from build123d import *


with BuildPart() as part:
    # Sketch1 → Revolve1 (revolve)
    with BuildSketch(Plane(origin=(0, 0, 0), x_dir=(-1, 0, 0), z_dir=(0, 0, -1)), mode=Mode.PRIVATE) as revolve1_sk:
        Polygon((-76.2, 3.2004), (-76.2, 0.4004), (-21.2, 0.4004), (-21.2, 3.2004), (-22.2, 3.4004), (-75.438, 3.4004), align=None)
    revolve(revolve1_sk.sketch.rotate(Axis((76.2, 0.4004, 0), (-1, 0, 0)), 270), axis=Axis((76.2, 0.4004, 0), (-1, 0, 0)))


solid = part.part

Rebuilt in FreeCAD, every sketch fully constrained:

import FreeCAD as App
import Part
import Sketcher
Q = App.Units.Quantity


def add_polygon(sketch, points):
    """Adds a closed chain of lines whose ends are joined by coincident constraints."""
    first, n = sketch.GeometryCount, len(points)
    for a, b in zip(points, points[1:] + points[:1]):
        sketch.addGeometry(Part.LineSegment(App.Vector(*a, 0), App.Vector(*b, 0)), False)
    for i in range(n):
        sketch.addConstraint(Sketcher.Constraint("Coincident", first + i, 2, first + (i + 1) % n, 1))

doc = App.newDocument("Part")
body = doc.addObject("PartDesign::Body", "Body")

# Sketch on XY plane
sketch1 = body.newObject("Sketcher::SketchObject", "Sketch")
sketch1.AttachmentSupport = (doc.getObject("XY_Plane"), [""])
sketch1.MapMode = "FlatFace"
add_polygon(sketch1, [(76.2, 3.2), (76.2, 0.4), (21.2, 0.4), (21.2, 3.2), (22.2, 3.4), (75.4, 3.4)])  # lines 0-5
sketch1.addGeometry(Part.LineSegment(App.Vector(76.2, 0.4, 0), App.Vector(21.2, 0.4, 0)), True)  # axis
sketch1.addConstraint([
    Sketcher.Constraint("Vertical", 0),
    Sketcher.Constraint("Horizontal", 1),
    Sketcher.Constraint("Vertical", 2),
    Sketcher.Constraint("Horizontal", 4),
    Sketcher.Constraint("Horizontal", 6),
    Sketcher.Constraint("Coincident", 6, 1, 0, 2),
    Sketcher.Constraint("Horizontal", 2, 2, 5, 2),
    Sketcher.Constraint("Vertical", 2, 2, 6, 2),
    Sketcher.Constraint("DistanceX", 1, 2, 1, 1, Q("55 mm")),
    Sketcher.Constraint("DistanceY", 0, 2, 0, 1, Q("2.8 mm")),
    Sketcher.Constraint("DistanceX", 2, 2, 3, 2, Q("1 mm")),
    Sketcher.Constraint("DistanceY", 1, 2, 3, 2, Q("3 mm")),
    Sketcher.Constraint("DistanceX", -1, 1, 0, 2, Q("76.2 mm")),
    Sketcher.Constraint("DistanceX", 4, 1, 4, 2, Q("53.238 mm")),
    Sketcher.Constraint("DistanceY", -1, 1, 0, 2, Q("0.4004 mm")),
])
revolution = body.newObject("PartDesign::Revolution", "Revolution")
revolution.Profile = sketch1
revolution.ReferenceAxis = (sketch1, ["Axis0"])
revolution.Angle = 360

doc.recompute()
